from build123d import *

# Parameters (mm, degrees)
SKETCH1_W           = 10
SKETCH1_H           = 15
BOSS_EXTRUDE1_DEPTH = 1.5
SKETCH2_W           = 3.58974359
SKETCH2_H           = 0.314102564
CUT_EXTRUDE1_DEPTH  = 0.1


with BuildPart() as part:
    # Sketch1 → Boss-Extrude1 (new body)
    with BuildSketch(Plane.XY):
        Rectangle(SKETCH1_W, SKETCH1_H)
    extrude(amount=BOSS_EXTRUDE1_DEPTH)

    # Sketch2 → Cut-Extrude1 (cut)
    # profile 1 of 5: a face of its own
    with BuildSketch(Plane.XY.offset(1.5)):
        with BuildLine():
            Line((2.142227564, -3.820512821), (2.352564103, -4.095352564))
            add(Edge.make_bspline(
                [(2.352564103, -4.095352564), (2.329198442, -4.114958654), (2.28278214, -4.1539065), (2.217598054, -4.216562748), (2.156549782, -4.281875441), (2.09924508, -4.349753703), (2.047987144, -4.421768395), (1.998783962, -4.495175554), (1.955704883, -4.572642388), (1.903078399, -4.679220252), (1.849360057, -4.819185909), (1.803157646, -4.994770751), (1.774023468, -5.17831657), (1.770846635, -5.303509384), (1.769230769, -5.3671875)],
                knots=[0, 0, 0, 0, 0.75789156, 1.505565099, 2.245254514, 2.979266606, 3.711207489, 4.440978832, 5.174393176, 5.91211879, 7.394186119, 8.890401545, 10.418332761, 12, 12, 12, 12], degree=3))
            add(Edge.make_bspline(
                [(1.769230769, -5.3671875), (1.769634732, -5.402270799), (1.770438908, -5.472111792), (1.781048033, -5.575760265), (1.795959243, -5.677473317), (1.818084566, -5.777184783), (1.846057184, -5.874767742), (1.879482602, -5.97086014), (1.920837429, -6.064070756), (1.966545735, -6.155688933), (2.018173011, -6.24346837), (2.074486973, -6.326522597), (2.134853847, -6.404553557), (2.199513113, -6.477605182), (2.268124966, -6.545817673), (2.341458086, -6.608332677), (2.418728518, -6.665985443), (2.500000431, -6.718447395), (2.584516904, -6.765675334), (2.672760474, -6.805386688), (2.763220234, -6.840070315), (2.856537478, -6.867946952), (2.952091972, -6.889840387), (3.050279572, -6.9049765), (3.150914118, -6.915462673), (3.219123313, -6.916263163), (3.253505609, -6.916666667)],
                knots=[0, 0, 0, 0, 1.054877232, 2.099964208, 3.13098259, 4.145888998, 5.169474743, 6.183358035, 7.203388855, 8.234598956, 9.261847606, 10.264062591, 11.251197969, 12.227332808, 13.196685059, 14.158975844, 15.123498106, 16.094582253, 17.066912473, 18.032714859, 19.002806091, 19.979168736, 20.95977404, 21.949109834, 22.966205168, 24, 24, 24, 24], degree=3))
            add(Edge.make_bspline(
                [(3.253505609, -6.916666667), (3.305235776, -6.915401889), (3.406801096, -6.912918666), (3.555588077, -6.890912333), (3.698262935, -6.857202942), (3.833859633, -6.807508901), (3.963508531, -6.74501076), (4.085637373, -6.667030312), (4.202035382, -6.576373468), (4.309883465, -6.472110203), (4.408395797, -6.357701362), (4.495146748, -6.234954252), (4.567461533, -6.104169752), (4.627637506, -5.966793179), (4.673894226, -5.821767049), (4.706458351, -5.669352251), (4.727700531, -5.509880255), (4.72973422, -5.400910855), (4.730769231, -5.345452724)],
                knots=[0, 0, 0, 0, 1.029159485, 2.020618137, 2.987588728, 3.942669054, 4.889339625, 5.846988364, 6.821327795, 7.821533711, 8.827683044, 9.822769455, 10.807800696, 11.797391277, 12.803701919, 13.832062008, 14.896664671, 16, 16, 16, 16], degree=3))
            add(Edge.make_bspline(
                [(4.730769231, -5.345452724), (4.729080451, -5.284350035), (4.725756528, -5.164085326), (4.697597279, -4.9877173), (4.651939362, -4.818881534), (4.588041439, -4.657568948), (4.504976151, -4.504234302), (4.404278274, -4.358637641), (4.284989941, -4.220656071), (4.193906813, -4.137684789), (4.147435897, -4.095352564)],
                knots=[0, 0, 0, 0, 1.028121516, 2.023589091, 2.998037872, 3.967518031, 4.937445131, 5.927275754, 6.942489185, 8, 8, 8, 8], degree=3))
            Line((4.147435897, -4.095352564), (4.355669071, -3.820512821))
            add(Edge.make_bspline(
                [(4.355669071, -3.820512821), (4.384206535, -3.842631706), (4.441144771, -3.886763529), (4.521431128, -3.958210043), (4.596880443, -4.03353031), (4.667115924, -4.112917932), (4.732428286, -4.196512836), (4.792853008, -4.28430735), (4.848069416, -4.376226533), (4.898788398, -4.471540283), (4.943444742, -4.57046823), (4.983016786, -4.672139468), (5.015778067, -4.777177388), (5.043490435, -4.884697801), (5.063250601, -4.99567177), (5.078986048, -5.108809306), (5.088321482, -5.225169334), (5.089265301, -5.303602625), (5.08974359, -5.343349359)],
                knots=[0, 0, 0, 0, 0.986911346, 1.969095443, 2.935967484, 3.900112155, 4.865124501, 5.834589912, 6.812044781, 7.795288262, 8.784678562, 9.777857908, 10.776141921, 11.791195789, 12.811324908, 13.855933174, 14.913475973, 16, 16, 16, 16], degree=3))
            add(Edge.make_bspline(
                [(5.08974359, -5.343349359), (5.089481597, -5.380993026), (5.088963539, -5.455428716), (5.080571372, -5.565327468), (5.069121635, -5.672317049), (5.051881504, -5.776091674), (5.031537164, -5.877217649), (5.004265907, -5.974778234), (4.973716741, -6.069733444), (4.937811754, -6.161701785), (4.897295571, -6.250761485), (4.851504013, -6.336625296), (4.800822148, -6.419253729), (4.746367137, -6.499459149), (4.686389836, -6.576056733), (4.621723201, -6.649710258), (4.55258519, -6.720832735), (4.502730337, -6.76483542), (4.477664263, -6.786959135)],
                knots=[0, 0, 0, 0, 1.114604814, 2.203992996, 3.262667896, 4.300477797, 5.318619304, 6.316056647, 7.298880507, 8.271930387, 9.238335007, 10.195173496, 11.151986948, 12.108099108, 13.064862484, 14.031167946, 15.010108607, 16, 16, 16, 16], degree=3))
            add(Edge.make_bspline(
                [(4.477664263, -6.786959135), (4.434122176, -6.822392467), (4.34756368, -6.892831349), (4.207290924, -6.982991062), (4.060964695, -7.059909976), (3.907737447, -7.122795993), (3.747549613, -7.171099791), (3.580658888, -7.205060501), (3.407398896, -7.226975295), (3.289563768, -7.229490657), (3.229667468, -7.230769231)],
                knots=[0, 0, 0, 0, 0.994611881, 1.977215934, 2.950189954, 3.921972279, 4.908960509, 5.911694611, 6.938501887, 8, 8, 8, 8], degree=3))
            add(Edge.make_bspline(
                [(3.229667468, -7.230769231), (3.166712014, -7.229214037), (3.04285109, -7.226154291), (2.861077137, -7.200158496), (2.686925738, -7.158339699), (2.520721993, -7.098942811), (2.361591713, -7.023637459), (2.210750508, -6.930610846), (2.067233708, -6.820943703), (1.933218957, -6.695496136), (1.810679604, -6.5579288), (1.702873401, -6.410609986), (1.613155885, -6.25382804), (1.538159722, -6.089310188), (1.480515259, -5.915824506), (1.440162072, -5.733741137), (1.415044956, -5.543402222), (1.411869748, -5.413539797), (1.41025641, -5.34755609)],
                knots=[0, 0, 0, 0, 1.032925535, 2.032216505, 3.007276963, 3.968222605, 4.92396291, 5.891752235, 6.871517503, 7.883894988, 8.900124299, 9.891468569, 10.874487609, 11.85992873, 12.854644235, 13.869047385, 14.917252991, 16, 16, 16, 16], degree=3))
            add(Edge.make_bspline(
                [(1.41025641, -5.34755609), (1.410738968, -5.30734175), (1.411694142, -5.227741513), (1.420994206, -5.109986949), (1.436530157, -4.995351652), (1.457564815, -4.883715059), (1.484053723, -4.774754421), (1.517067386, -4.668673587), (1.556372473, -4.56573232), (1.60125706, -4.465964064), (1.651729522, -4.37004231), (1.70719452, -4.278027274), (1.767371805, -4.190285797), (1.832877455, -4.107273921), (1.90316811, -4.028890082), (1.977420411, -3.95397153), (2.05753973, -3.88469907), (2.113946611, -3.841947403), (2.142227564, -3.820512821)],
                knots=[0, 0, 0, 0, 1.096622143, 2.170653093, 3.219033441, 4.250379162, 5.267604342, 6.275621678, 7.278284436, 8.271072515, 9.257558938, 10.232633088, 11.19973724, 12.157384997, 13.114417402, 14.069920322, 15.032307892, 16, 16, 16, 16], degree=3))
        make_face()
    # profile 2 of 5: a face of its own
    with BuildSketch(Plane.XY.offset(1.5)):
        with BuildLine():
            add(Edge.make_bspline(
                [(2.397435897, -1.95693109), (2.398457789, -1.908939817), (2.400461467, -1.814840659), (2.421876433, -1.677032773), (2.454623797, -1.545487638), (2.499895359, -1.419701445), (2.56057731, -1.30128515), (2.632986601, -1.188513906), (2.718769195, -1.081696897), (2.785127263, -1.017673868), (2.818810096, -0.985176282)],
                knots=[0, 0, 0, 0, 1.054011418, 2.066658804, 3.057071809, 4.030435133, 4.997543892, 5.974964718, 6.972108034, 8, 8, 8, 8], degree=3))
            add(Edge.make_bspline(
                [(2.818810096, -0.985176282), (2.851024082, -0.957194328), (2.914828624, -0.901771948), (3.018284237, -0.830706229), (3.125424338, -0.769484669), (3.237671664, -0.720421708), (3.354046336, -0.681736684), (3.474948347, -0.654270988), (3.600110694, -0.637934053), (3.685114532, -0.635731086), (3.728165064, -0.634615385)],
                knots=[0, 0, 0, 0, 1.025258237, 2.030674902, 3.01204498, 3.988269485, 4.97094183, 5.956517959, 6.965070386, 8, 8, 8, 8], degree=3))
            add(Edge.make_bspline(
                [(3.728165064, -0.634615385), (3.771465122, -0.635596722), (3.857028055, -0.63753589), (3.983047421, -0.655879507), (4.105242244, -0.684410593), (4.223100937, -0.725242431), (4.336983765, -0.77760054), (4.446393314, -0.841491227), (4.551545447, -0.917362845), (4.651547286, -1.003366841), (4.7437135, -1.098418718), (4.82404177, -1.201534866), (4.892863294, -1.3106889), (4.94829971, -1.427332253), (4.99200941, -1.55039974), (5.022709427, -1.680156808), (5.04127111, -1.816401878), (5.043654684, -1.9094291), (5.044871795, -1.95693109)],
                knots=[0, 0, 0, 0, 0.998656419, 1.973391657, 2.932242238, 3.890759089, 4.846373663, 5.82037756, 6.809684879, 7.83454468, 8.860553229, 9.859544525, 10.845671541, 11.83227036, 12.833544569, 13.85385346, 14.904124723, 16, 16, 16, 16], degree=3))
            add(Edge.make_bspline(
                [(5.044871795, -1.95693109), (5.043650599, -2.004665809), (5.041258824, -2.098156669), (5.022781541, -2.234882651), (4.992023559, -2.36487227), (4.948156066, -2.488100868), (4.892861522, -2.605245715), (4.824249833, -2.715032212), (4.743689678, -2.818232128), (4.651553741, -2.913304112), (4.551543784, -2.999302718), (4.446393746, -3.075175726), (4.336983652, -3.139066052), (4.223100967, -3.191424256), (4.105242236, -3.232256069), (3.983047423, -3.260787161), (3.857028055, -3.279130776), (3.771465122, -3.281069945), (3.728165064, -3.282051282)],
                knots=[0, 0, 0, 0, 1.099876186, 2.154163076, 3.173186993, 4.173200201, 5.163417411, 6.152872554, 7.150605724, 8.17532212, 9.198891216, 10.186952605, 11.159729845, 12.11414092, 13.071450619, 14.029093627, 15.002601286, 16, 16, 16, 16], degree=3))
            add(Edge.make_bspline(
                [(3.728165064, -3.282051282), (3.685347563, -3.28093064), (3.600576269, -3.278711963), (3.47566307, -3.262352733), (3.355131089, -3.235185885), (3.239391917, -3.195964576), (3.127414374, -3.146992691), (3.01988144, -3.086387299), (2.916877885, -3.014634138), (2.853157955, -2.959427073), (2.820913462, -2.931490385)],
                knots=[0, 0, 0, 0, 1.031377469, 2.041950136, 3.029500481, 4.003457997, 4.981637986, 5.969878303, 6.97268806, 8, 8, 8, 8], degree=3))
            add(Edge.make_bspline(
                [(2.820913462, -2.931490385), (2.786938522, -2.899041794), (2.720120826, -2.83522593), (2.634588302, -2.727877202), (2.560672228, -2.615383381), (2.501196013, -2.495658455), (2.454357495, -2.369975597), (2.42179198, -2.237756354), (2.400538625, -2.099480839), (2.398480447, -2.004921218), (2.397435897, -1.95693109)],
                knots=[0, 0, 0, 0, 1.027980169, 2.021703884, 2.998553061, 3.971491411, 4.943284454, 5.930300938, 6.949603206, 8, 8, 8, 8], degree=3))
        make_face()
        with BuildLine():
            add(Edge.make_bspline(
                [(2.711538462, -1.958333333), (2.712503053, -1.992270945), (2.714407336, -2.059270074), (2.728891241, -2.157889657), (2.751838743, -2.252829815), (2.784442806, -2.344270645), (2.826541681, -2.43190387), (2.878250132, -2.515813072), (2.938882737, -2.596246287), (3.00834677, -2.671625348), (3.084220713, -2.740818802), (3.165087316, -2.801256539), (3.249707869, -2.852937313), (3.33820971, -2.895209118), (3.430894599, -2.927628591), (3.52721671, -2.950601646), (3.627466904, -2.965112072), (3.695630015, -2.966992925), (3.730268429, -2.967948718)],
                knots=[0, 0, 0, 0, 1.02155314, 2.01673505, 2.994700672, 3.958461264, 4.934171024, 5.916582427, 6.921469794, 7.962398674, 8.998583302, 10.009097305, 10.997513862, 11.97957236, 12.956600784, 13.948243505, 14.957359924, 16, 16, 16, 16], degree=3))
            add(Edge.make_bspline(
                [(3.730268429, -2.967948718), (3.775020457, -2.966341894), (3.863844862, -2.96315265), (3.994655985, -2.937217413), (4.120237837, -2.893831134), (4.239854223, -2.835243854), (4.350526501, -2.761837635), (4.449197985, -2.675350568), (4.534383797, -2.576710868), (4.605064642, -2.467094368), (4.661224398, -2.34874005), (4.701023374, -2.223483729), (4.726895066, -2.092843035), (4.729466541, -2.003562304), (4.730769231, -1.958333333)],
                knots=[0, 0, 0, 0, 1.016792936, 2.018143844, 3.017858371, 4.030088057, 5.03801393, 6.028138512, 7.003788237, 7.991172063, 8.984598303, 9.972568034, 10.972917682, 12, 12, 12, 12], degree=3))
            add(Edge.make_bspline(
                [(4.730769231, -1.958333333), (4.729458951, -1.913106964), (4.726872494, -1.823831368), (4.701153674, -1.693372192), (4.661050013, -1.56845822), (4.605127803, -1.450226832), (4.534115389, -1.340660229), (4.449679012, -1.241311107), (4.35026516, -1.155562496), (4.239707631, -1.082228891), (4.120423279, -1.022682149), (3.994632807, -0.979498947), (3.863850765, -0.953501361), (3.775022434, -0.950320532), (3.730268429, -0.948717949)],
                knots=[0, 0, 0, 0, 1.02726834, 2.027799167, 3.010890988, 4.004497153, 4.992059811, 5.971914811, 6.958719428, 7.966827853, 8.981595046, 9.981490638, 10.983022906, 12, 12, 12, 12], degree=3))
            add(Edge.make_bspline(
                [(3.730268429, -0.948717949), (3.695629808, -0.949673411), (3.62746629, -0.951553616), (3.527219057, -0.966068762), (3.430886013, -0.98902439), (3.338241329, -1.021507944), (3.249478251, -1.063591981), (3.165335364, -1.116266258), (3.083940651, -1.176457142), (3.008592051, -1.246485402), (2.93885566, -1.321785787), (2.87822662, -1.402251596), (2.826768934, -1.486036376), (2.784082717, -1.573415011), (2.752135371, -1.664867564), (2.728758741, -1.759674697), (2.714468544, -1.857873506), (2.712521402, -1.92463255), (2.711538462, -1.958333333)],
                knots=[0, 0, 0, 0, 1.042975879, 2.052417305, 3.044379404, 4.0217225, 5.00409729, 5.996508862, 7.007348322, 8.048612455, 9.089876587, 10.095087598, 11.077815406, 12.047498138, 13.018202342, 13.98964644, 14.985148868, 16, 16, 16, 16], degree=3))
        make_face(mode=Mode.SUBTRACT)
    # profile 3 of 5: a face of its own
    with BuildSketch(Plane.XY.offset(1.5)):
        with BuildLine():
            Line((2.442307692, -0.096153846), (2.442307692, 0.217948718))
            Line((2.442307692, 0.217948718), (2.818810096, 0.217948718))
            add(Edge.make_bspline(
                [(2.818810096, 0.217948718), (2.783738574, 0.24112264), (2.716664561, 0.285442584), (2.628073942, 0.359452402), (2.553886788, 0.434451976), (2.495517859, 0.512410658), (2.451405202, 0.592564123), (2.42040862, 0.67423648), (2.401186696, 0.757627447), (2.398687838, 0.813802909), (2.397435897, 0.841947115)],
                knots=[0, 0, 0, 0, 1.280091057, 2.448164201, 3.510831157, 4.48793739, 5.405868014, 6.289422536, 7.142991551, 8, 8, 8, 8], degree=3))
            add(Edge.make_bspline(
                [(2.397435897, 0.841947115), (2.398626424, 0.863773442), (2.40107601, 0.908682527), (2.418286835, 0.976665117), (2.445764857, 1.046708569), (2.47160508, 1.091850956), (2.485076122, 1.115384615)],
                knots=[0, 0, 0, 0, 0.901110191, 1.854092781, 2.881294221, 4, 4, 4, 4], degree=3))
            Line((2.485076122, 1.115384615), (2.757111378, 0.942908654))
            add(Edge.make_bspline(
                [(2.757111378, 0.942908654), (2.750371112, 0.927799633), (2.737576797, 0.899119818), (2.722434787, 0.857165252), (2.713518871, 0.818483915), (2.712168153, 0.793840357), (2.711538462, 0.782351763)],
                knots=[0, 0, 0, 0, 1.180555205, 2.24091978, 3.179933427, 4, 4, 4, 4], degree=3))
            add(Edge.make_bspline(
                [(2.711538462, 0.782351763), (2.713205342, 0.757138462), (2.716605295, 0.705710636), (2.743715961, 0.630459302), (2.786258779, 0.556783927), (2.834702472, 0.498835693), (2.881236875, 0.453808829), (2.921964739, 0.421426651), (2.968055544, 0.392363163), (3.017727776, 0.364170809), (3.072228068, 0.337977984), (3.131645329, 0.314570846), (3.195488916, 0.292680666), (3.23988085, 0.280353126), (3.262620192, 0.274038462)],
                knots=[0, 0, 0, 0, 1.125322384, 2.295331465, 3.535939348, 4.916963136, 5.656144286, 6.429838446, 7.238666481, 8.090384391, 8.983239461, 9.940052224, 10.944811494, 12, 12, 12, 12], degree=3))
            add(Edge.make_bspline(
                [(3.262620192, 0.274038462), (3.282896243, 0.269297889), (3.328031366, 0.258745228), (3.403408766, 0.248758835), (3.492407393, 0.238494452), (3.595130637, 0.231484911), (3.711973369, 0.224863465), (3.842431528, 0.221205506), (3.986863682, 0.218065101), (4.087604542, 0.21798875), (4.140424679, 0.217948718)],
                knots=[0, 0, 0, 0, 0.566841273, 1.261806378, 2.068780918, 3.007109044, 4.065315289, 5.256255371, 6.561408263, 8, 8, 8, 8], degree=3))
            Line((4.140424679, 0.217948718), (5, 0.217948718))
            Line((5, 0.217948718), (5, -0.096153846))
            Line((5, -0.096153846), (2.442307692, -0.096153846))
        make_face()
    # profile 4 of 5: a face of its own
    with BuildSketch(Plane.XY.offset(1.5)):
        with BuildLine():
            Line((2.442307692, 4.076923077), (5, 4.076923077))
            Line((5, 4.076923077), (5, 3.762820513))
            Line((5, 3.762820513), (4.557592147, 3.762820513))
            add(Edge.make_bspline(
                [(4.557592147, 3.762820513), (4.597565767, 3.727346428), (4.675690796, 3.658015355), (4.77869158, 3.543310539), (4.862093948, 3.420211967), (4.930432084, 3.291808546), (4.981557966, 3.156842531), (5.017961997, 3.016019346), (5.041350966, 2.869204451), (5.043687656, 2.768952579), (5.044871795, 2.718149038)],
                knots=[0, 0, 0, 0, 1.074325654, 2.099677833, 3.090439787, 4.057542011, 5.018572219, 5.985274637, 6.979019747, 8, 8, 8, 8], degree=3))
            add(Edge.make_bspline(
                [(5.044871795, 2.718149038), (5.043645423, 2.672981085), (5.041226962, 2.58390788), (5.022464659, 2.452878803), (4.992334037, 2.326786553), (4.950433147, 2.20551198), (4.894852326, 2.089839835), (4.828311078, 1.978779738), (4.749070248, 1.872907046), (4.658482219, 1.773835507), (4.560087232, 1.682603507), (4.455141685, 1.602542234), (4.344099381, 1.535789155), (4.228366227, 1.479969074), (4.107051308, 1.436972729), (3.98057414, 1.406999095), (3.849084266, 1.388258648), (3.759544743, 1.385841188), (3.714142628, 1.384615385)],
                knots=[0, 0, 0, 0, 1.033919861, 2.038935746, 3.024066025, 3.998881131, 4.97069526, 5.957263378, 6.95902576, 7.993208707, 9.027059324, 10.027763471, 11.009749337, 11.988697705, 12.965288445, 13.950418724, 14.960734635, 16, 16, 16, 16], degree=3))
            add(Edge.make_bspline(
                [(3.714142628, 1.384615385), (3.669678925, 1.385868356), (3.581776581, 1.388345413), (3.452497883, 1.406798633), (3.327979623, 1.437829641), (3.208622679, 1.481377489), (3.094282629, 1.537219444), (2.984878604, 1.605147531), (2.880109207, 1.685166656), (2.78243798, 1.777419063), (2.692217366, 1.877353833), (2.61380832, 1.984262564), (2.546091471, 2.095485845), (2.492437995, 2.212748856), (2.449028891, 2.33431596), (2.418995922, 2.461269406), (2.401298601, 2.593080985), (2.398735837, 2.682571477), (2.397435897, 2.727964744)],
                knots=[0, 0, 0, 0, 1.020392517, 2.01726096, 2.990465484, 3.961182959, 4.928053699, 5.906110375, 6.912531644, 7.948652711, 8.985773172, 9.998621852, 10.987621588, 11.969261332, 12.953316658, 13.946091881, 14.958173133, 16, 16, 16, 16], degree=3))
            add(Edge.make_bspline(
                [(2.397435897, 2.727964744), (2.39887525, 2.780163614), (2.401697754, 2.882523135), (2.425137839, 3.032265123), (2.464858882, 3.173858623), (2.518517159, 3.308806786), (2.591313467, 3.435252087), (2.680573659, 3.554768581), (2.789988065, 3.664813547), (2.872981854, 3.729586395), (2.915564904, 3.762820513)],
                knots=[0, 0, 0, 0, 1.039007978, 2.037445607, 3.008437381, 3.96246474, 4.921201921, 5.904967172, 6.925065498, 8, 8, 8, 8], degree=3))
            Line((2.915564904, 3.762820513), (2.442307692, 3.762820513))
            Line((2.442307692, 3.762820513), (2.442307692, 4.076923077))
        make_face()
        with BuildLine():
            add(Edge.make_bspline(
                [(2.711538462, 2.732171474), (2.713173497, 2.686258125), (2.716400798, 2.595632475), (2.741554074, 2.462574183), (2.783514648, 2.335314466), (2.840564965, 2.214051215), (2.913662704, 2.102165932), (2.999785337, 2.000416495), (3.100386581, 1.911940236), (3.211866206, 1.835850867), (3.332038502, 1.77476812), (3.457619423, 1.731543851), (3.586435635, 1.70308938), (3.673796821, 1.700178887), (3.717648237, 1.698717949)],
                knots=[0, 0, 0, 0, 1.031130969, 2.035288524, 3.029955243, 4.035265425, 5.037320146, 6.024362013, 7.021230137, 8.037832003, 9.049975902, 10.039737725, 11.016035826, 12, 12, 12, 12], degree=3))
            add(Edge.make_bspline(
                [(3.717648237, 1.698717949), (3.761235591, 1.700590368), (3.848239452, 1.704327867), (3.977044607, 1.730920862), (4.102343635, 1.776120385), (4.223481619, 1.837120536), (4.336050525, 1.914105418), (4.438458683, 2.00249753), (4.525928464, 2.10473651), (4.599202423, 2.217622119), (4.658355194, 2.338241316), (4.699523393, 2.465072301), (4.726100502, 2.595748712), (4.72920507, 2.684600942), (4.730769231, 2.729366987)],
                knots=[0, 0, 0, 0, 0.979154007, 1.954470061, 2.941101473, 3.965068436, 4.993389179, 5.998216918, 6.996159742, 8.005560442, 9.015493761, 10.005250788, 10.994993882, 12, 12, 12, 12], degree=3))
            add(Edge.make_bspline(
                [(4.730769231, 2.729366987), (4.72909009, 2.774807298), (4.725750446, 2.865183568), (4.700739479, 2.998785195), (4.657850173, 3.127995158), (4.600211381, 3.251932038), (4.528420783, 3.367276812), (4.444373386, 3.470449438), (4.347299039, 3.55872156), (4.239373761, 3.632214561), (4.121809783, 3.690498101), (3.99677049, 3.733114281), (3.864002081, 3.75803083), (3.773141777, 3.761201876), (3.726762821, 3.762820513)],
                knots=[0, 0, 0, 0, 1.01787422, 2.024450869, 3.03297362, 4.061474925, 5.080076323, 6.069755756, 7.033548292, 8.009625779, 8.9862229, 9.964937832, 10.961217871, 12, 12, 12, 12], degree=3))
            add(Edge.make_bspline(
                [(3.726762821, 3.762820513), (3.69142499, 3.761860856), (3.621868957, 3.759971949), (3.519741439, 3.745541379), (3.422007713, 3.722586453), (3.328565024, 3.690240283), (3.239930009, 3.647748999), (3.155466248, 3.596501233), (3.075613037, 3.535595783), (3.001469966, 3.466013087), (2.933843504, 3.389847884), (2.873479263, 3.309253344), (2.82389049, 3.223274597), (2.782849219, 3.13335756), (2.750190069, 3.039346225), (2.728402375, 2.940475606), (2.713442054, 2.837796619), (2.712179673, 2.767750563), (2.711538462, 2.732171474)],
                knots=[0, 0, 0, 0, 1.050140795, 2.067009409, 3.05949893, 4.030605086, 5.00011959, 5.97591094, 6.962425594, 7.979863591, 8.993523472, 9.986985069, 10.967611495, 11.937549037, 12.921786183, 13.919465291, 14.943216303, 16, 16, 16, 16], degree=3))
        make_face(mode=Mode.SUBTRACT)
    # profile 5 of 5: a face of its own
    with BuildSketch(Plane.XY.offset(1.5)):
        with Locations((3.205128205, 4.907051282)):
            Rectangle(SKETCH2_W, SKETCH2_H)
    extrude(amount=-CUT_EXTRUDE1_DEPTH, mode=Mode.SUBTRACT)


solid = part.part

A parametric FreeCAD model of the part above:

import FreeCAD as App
import Part
import Sketcher

V = App.Vector


def add_polygon(sketch, points):
    """Adds a closed chain of lines whose ends are joined by coincident constraints."""
    first, n = sketch.GeometryCount, len(points)
    for a, b in zip(points, points[1:] + points[:1]):
        sketch.addGeometry(Part.LineSegment(App.Vector(*a, 0), App.Vector(*b, 0)), False)
    for i in range(n):
        sketch.addConstraint(Sketcher.Constraint("Coincident", first + i, 2, first + (i + 1) % n, 1))

doc = App.newDocument("Part")
params = doc.addObject("Spreadsheet::Sheet", "Params")
for row, (alias, value) in enumerate([
    ("sketch1_width", "10 mm"),
    ("sketch1_height", "15 mm"),
    ("pad1_length", "1.5 mm"),
    ("pocket1_length", "0.1 mm"),
], start=1):
    params.set(f"A{row}", alias)
    params.set(f"B{row}", "=" + value)
    params.setAlias(f"B{row}", alias)

body = doc.addObject("PartDesign::Body", "Body")

# Sketch on XY plane
sketch1 = body.newObject("Sketcher::SketchObject", "Sketch")
sketch1.AttachmentSupport = (doc.getObject("XY_Plane"), [""])
sketch1.MapMode = "FlatFace"
add_polygon(sketch1, [(-5, 7.5), (-5, -7.5), (5, -7.5), (5, 7.5)])  # lines 0-3
sketch1.addConstraint(Sketcher.Constraint("Vertical", 0))
sketch1.addConstraint(Sketcher.Constraint("Horizontal", 1))
sketch1.addConstraint(Sketcher.Constraint("Vertical", 2))
sketch1.addConstraint(Sketcher.Constraint("Horizontal", 3))
sketch1.addConstraint(Sketcher.Constraint("Symmetric", 0, 2, 2, 2, -1, 1))
sketch1.addConstraint(Sketcher.Constraint("DistanceX", 1, 1, 1, 2, 10.0))
sketch1.addConstraint(Sketcher.Constraint("DistanceY", 0, 2, 0, 1, 15.0))
sketch1.setExpression("Constraints[9]", "Params.sketch1_width")
sketch1.setExpression("Constraints[10]", "Params.sketch1_height")
pad1 = body.newObject("PartDesign::Pad", "Pad")
pad1.Profile = sketch1
pad1.setExpression("Length", "Params.pad1_length")

# Sketch on XY plane
sketch2 = body.newObject("Sketcher::SketchObject", "Sketch001")
sketch2.AttachmentSupport = (doc.getObject("XY_Plane"), [""])
sketch2.MapMode = "FlatFace"
sketch2.AttachmentOffset = App.Placement(V(0, 0, 1.5), App.Rotation())
sketch2.addGeometry(Part.LineSegment(V(2.352564, -4.095353, 0), V(2.142228, -3.820513, 0)), False)  # 0
sketch2.addGeometry(Part.BSplineCurve([V(1.410256, -5.347556, 0), V(1.410739, -5.307342, 0), V(1.411694, -5.227742, 0), V(1.420994, -5.109987, 0), V(1.43653, -4.995352, 0), V(1.457565, -4.883715, 0), V(1.484054, -4.774754, 0), V(1.517067, -4.668674, 0), V(1.556372, -4.565732, 0), V(1.601257, -4.465964, 0), V(1.65173, -4.370042, 0), V(1.707195, -4.278027, 0), V(1.767372, -4.190286, 0), V(1.832877, -4.107274, 0), V(1.903168, -4.02889, 0), V(1.97742, -3.953972, 0), V(2.05754, -3.884699, 0), V(2.113947, -3.841947, 0), V(2.142228, -3.820513, 0)], [4, 1, 1, 1, 1, 1, 1, 1, 1, 1, 1, 1, 1, 1, 1, 1, 4], [0, 1.096622143, 2.170653093, 3.219033441, 4.250379162, 5.267604342, 6.275621678, 7.278284436, 8.271072515, 9.257558938, 10.232633088, 11.19973724, 12.157384997, 13.114417402, 14.069920322, 15.032307892, 16], False, 3, [1, 1, 1, 1, 1, 1, 1, 1, 1, 1, 1, 1, 1, 1, 1, 1, 1, 1, 1], False), False)  # 1
sketch2.addGeometry(Part.BSplineCurve([V(3.229667, -7.230769, 0), V(3.166712, -7.229214, 0), V(3.042851, -7.226154, 0), V(2.861077, -7.200158, 0), V(2.686926, -7.15834, 0), V(2.520722, -7.098943, 0), V(2.361592, -7.023637, 0), V(2.210751, -6.930611, 0), V(2.067234, -6.820944, 0), V(1.933219, -6.695496, 0), V(1.81068, -6.557929, 0), V(1.702873, -6.41061, 0), V(1.613156, -6.253828, 0), V(1.53816, -6.08931, 0), V(1.480515, -5.915825, 0), V(1.440162, -5.733741, 0), V(1.415045, -5.543402, 0), V(1.41187, -5.41354, 0), V(1.410256, -5.347556, 0)], [4, 1, 1, 1, 1, 1, 1, 1, 1, 1, 1, 1, 1, 1, 1, 1, 4], [0, 1.032925535, 2.032216505, 3.007276963, 3.968222605, 4.92396291, 5.891752235, 6.871517503, 7.883894988, 8.900124299, 9.891468569, 10.874487609, 11.85992873, 12.854644235, 13.869047385, 14.917252991, 16], False, 3, [1, 1, 1, 1, 1, 1, 1, 1, 1, 1, 1, 1, 1, 1, 1, 1, 1, 1, 1], False), False)  # 2
sketch2.addGeometry(Part.BSplineCurve([V(4.477664, -6.786959, 0), V(4.434122, -6.822392, 0), V(4.347564, -6.892831, 0), V(4.207291, -6.982991, 0), V(4.060965, -7.05991, 0), V(3.907737, -7.122796, 0), V(3.74755, -7.1711, 0), V(3.580659, -7.205061, 0), V(3.407399, -7.226975, 0), V(3.289564, -7.229491, 0), V(3.229667, -7.230769, 0)], [4, 1, 1, 1, 1, 1, 1, 1, 4], [0, 0.994611881, 1.977215934, 2.950189954, 3.921972279, 4.908960509, 5.911694611, 6.938501887, 8], False, 3, [1, 1, 1, 1, 1, 1, 1, 1, 1, 1, 1], False), False)  # 3
sketch2.addGeometry(Part.BSplineCurve([V(5.089744, -5.343349, 0), V(5.089482, -5.380993, 0), V(5.088964, -5.455429, 0), V(5.080571, -5.565327, 0), V(5.069122, -5.672317, 0), V(5.051882, -5.776092, 0), V(5.031537, -5.877218, 0), V(5.004266, -5.974778, 0), V(4.973717, -6.069733, 0), V(4.937812, -6.161702, 0), V(4.897296, -6.250761, 0), V(4.851504, -6.336625, 0), V(4.800822, -6.419254, 0), V(4.746367, -6.499459, 0), V(4.68639, -6.576057, 0), V(4.621723, -6.64971, 0), V(4.552585, -6.720833, 0), V(4.50273, -6.764835, 0), V(4.477664, -6.786959, 0)], [4, 1, 1, 1, 1, 1, 1, 1, 1, 1, 1, 1, 1, 1, 1, 1, 4], [0, 1.114604814, 2.203992996, 3.262667896, 4.300477797, 5.318619304, 6.316056647, 7.298880507, 8.271930387, 9.238335007, 10.195173496, 11.151986948, 12.108099108, 13.064862484, 14.031167946, 15.010108607, 16], False, 3, [1, 1, 1, 1, 1, 1, 1, 1, 1, 1, 1, 1, 1, 1, 1, 1, 1, 1, 1], False), False)  # 4
sketch2.addGeometry(Part.BSplineCurve([V(4.355669, -3.820513, 0), V(4.384207, -3.842632, 0), V(4.441145, -3.886764, 0), V(4.521431, -3.95821, 0), V(4.59688, -4.03353, 0), V(4.667116, -4.112918, 0), V(4.732428, -4.196513, 0), V(4.792853, -4.284307, 0), V(4.848069, -4.376227, 0), V(4.898788, -4.47154, 0), V(4.943445, -4.570468, 0), V(4.983017, -4.672139, 0), V(5.015778, -4.777177, 0), V(5.04349, -4.884698, 0), V(5.063251, -4.995672, 0), V(5.078986, -5.108809, 0), V(5.088321, -5.225169, 0), V(5.089265, -5.303603, 0), V(5.089744, -5.343349, 0)], [4, 1, 1, 1, 1, 1, 1, 1, 1, 1, 1, 1, 1, 1, 1, 1, 4], [0, 0.986911346, 1.969095443, 2.935967484, 3.900112155, 4.865124501, 5.834589912, 6.812044781, 7.795288262, 8.784678562, 9.777857908, 10.776141921, 11.791195789, 12.811324908, 13.855933174, 14.913475973, 16], False, 3, [1, 1, 1, 1, 1, 1, 1, 1, 1, 1, 1, 1, 1, 1, 1, 1, 1, 1, 1], False), False)  # 5
sketch2.addGeometry(Part.LineSegment(V(4.355669, -3.820513, 0), V(4.147436, -4.095353, 0)), False)  # 6
sketch2.addGeometry(Part.BSplineCurve([V(4.730769, -5.345453, 0), V(4.72908, -5.28435, 0), V(4.725757, -5.164085, 0), V(4.697597, -4.987717, 0), V(4.651939, -4.818882, 0), V(4.588041, -4.657569, 0), V(4.504976, -4.504234, 0), V(4.404278, -4.358638, 0), V(4.28499, -4.220656, 0), V(4.193907, -4.137685, 0), V(4.147436, -4.095353, 0)], [4, 1, 1, 1, 1, 1, 1, 1, 4], [0, 1.028121516, 2.023589091, 2.998037872, 3.967518031, 4.937445131, 5.927275754, 6.942489185, 8], False, 3, [1, 1, 1, 1, 1, 1, 1, 1, 1, 1, 1], False), False)  # 7
sketch2.addGeometry(Part.BSplineCurve([V(3.253506, -6.916667, 0), V(3.305236, -6.915402, 0), V(3.406801, -6.912919, 0), V(3.555588, -6.890912, 0), V(3.698263, -6.857203, 0), V(3.83386, -6.807509, 0), V(3.963509, -6.745011, 0), V(4.085637, -6.66703, 0), V(4.202035, -6.576373, 0), V(4.309883, -6.47211, 0), V(4.408396, -6.357701, 0), V(4.495147, -6.234954, 0), V(4.567462, -6.10417, 0), V(4.627638, -5.966793, 0), V(4.673894, -5.821767, 0), V(4.706458, -5.669352, 0), V(4.727701, -5.50988, 0), V(4.729734, -5.400911, 0), V(4.730769, -5.345453, 0)], [4, 1, 1, 1, 1, 1, 1, 1, 1, 1, 1, 1, 1, 1, 1, 1, 4], [0, 1.029159485, 2.020618137, 2.987588728, 3.942669054, 4.889339625, 5.846988364, 6.821327795, 7.821533711, 8.827683044, 9.822769455, 10.807800696, 11.797391277, 12.803701919, 13.832062008, 14.896664671, 16], False, 3, [1, 1, 1, 1, 1, 1, 1, 1, 1, 1, 1, 1, 1, 1, 1, 1, 1, 1, 1], False), False)  # 8
sketch2.addGeometry(Part.BSplineCurve([V(1.769231, -5.367188, 0), V(1.769635, -5.402271, 0), V(1.770439, -5.472112, 0), V(1.781048, -5.57576, 0), V(1.795959, -5.677473, 0), V(1.818085, -5.777185, 0), V(1.846057, -5.874768, 0), V(1.879483, -5.97086, 0), V(1.920837, -6.064071, 0), V(1.966546, -6.155689, 0), V(2.018173, -6.243468, 0), V(2.074487, -6.326523, 0), V(2.134854, -6.404554, 0), V(2.199513, -6.477605, 0), V(2.268125, -6.545818, 0), V(2.341458, -6.608333, 0), V(2.418729, -6.665985, 0), V(2.5, -6.718447, 0), V(2.584517, -6.765675, 0), V(2.67276, -6.805387, 0), V(2.76322, -6.84007, 0), V(2.856537, -6.867947, 0), V(2.952092, -6.88984, 0), V(3.05028, -6.904977, 0), V(3.150914, -6.915463, 0), V(3.219123, -6.916263, 0), V(3.253506, -6.916667, 0)], [4, 1, 1, 1, 1, 1, 1, 1, 1, 1, 1, 1, 1, 1, 1, 1, 1, 1, 1, 1, 1, 1, 1, 1, 4], [0, 1.054877232, 2.099964208, 3.13098259, 4.145888998, 5.169474743, 6.183358035, 7.203388855, 8.234598956, 9.261847606, 10.264062591, 11.251197969, 12.227332808, 13.196685059, 14.158975844, 15.123498106, 16.094582253, 17.066912473, 18.032714859, 19.002806091, 19.979168736, 20.95977404, 21.949109834, 22.966205168, 24], False, 3, [1, 1, 1, 1, 1, 1, 1, 1, 1, 1, 1, 1, 1, 1, 1, 1, 1, 1, 1, 1, 1, 1, 1, 1, 1, 1, 1], False), False)  # 9
sketch2.addGeometry(Part.BSplineCurve([V(2.352564, -4.095353, 0), V(2.329198, -4.114959, 0), V(2.282782, -4.153906, 0), V(2.217598, -4.216563, 0), V(2.15655, -4.281875, 0), V(2.099245, -4.349754, 0), V(2.047987, -4.421768, 0), V(1.998784, -4.495176, 0), V(1.955705, -4.572642, 0), V(1.903078, -4.67922, 0), V(1.84936, -4.819186, 0), V(1.803158, -4.994771, 0), V(1.774023, -5.178317, 0), V(1.770847, -5.303509, 0), V(1.769231, -5.367188, 0)], [4, 1, 1, 1, 1, 1, 1, 1, 1, 1, 1, 1, 4], [0, 0.75789156, 1.505565099, 2.245254514, 2.979266606, 3.711207489, 4.440978832, 5.174393176, 5.91211879, 7.394186119, 8.890401545, 10.418332761, 12], False, 3, [1, 1, 1, 1, 1, 1, 1, 1, 1, 1, 1, 1, 1, 1, 1], False), False)  # 10
sketch2.addGeometry(Part.BSplineCurve([V(2.397436, -1.956931, 0), V(2.398458, -1.90894, 0), V(2.400461, -1.814841, 0), V(2.421876, -1.677033, 0), V(2.454624, -1.545488, 0), V(2.499895, -1.419701, 0), V(2.560577, -1.301285, 0), V(2.632987, -1.188514, 0), V(2.718769, -1.081697, 0), V(2.785127, -1.017674, 0), V(2.81881, -0.985176, 0)], [4, 1, 1, 1, 1, 1, 1, 1, 4], [0, 1.054011418, 2.066658804, 3.057071809, 4.030435133, 4.997543892, 5.974964718, 6.972108034, 8], False, 3, [1, 1, 1, 1, 1, 1, 1, 1, 1, 1, 1], False), False)  # 11
sketch2.addGeometry(Part.BSplineCurve([V(2.820913, -2.93149, 0), V(2.786939, -2.899042, 0), V(2.720121, -2.835226, 0), V(2.634588, -2.727877, 0), V(2.560672, -2.615383, 0), V(2.501196, -2.495658, 0), V(2.454357, -2.369976, 0), V(2.421792, -2.237756, 0), V(2.400539, -2.099481, 0), V(2.39848, -2.004921, 0), V(2.397436, -1.956931, 0)], [4, 1, 1, 1, 1, 1, 1, 1, 4], [0, 1.027980169, 2.021703884, 2.998553061, 3.971491411, 4.943284454, 5.930300938, 6.949603206, 8], False, 3, [1, 1, 1, 1, 1, 1, 1, 1, 1, 1, 1], False), False)  # 12
sketch2.addGeometry(Part.BSplineCurve([V(3.728165, -3.282051, 0), V(3.685348, -3.280931, 0), V(3.600576, -3.278712, 0), V(3.475663, -3.262353, 0), V(3.355131, -3.235186, 0), V(3.239392, -3.195965, 0), V(3.127414, -3.146993, 0), V(3.019881, -3.086387, 0), V(2.916878, -3.014634, 0), V(2.853158, -2.959427, 0), V(2.820913, -2.93149, 0)], [4, 1, 1, 1, 1, 1, 1, 1, 4], [0, 1.031377469, 2.041950136, 3.029500481, 4.003457997, 4.981637986, 5.969878303, 6.97268806, 8], False, 3, [1, 1, 1, 1, 1, 1, 1, 1, 1, 1, 1], False), False)  # 13
sketch2.addGeometry(Part.BSplineCurve([V(5.044872, -1.956931, 0), V(5.043651, -2.004666, 0), V(5.041259, -2.098157, 0), V(5.022782, -2.234883, 0), V(4.992024, -2.364872, 0), V(4.948156, -2.488101, 0), V(4.892862, -2.605246, 0), V(4.82425, -2.715032, 0), V(4.74369, -2.818232, 0), V(4.651554, -2.913304, 0), V(4.551544, -2.999303, 0), V(4.446394, -3.075176, 0), V(4.336984, -3.139066, 0), V(4.223101, -3.191424, 0), V(4.105242, -3.232256, 0), V(3.983047, -3.260787, 0), V(3.857028, -3.279131, 0), V(3.771465, -3.28107, 0), V(3.728165, -3.282051, 0)], [4, 1, 1, 1, 1, 1, 1, 1, 1, 1, 1, 1, 1, 1, 1, 1, 4], [0, 1.099876186, 2.154163076, 3.173186993, 4.173200201, 5.163417411, 6.152872554, 7.150605724, 8.17532212, 9.198891216, 10.186952605, 11.159729845, 12.11414092, 13.071450619, 14.029093627, 15.002601286, 16], False, 3, [1, 1, 1, 1, 1, 1, 1, 1, 1, 1, 1, 1, 1, 1, 1, 1, 1, 1, 1], False), False)  # 14
sketch2.addGeometry(Part.BSplineCurve([V(3.728165, -0.634615, 0), V(3.771465, -0.635597, 0), V(3.857028, -0.637536, 0), V(3.983047, -0.65588, 0), V(4.105242, -0.684411, 0), V(4.223101, -0.725242, 0), V(4.336984, -0.777601, 0), V(4.446393, -0.841491, 0), V(4.551545, -0.917363, 0), V(4.651547, -1.003367, 0), V(4.743714, -1.098419, 0), V(4.824042, -1.201535, 0), V(4.892863, -1.310689, 0), V(4.9483, -1.427332, 0), V(4.992009, -1.5504, 0), V(5.022709, -1.680157, 0), V(5.041271, -1.816402, 0), V(5.043655, -1.909429, 0), V(5.044872, -1.956931, 0)], [4, 1, 1, 1, 1, 1, 1, 1, 1, 1, 1, 1, 1, 1, 1, 1, 4], [0, 0.998656419, 1.973391657, 2.932242238, 3.890759089, 4.846373663, 5.82037756, 6.809684879, 7.83454468, 8.860553229, 9.859544525, 10.845671541, 11.83227036, 12.833544569, 13.85385346, 14.904124723, 16], False, 3, [1, 1, 1, 1, 1, 1, 1, 1, 1, 1, 1, 1, 1, 1, 1, 1, 1, 1, 1], False), False)  # 15
sketch2.addGeometry(Part.BSplineCurve([V(2.81881, -0.985176, 0), V(2.851024, -0.957194, 0), V(2.914829, -0.901772, 0), V(3.018284, -0.830706, 0), V(3.125424, -0.769485, 0), V(3.237672, -0.720422, 0), V(3.354046, -0.681737, 0), V(3.474948, -0.654271, 0), V(3.600111, -0.637934, 0), V(3.685115, -0.635731, 0), V(3.728165, -0.634615, 0)], [4, 1, 1, 1, 1, 1, 1, 1, 4], [0, 1.025258237, 2.030674902, 3.01204498, 3.988269485, 4.97094183, 5.956517959, 6.965070386, 8], False, 3, [1, 1, 1, 1, 1, 1, 1, 1, 1, 1, 1], False), False)  # 16
sketch2.addGeometry(Part.BSplineCurve([V(3.730268, -0.948718, 0), V(3.69563, -0.949673, 0), V(3.627466, -0.951554, 0), V(3.527219, -0.966069, 0), V(3.430886, -0.989024, 0), V(3.338241, -1.021508, 0), V(3.249478, -1.063592, 0), V(3.165335, -1.116266, 0), V(3.083941, -1.176457, 0), V(3.008592, -1.246485, 0), V(2.938856, -1.321786, 0), V(2.878227, -1.402252, 0), V(2.826769, -1.486036, 0), V(2.784083, -1.573415, 0), V(2.752135, -1.664868, 0), V(2.728759, -1.759675, 0), V(2.714469, -1.857874, 0), V(2.712521, -1.924633, 0), V(2.711538, -1.958333, 0)], [4, 1, 1, 1, 1, 1, 1, 1, 1, 1, 1, 1, 1, 1, 1, 1, 4], [0, 1.042975879, 2.052417305, 3.044379404, 4.0217225, 5.00409729, 5.996508862, 7.007348322, 8.048612455, 9.089876587, 10.095087598, 11.077815406, 12.047498138, 13.018202342, 13.98964644, 14.985148868, 16], False, 3, [1, 1, 1, 1, 1, 1, 1, 1, 1, 1, 1, 1, 1, 1, 1, 1, 1, 1, 1], False), False)  # 17
sketch2.addGeometry(Part.BSplineCurve([V(4.730769, -1.958333, 0), V(4.729459, -1.913107, 0), V(4.726872, -1.823831, 0), V(4.701154, -1.693372, 0), V(4.66105, -1.568458, 0), V(4.605128, -1.450227, 0), V(4.534115, -1.34066, 0), V(4.449679, -1.241311, 0), V(4.350265, -1.155562, 0), V(4.239708, -1.082229, 0), V(4.120423, -1.022682, 0), V(3.994633, -0.979499, 0), V(3.863851, -0.953501, 0), V(3.775022, -0.950321, 0), V(3.730268, -0.948718, 0)], [4, 1, 1, 1, 1, 1, 1, 1, 1, 1, 1, 1, 4], [0, 1.02726834, 2.027799167, 3.010890988, 4.004497153, 4.992059811, 5.971914811, 6.958719428, 7.966827853, 8.981595046, 9.981490638, 10.983022906, 12], False, 3, [1, 1, 1, 1, 1, 1, 1, 1, 1, 1, 1, 1, 1, 1, 1], False), False)  # 18
sketch2.addGeometry(Part.BSplineCurve([V(3.730268, -2.967949, 0), V(3.77502, -2.966342, 0), V(3.863845, -2.963153, 0), V(3.994656, -2.937217, 0), V(4.120238, -2.893831, 0), V(4.239854, -2.835244, 0), V(4.350527, -2.761838, 0), V(4.449198, -2.675351, 0), V(4.534384, -2.576711, 0), V(4.605065, -2.467094, 0), V(4.661224, -2.34874, 0), V(4.701023, -2.223484, 0), V(4.726895, -2.092843, 0), V(4.729467, -2.003562, 0), V(4.730769, -1.958333, 0)], [4, 1, 1, 1, 1, 1, 1, 1, 1, 1, 1, 1, 4], [0, 1.016792936, 2.018143844, 3.017858371, 4.030088057, 5.03801393, 6.028138512, 7.003788237, 7.991172063, 8.984598303, 9.972568034, 10.972917682, 12], False, 3, [1, 1, 1, 1, 1, 1, 1, 1, 1, 1, 1, 1, 1, 1, 1], False), False)  # 19
sketch2.addGeometry(Part.BSplineCurve([V(2.711538, -1.958333, 0), V(2.712503, -1.992271, 0), V(2.714407, -2.05927, 0), V(2.728891, -2.15789, 0), V(2.751839, -2.25283, 0), V(2.784443, -2.344271, 0), V(2.826542, -2.431904, 0), V(2.87825, -2.515813, 0), V(2.938883, -2.596246, 0), V(3.008347, -2.671625, 0), V(3.084221, -2.740819, 0), V(3.165087, -2.801257, 0), V(3.249708, -2.852937, 0), V(3.33821, -2.895209, 0), V(3.430895, -2.927629, 0), V(3.527217, -2.950602, 0), V(3.627467, -2.965112, 0), V(3.69563, -2.966993, 0), V(3.730268, -2.967949, 0)], [4, 1, 1, 1, 1, 1, 1, 1, 1, 1, 1, 1, 1, 1, 1, 1, 4], [0, 1.02155314, 2.01673505, 2.994700672, 3.958461264, 4.934171024, 5.916582427, 6.921469794, 7.962398674, 8.998583302, 10.009097305, 10.997513862, 11.97957236, 12.956600784, 13.948243505, 14.957359924, 16], False, 3, [1, 1, 1, 1, 1, 1, 1, 1, 1, 1, 1, 1, 1, 1, 1, 1, 1, 1, 1], False), False)  # 20
sketch2.addGeometry(Part.LineSegment(V(2.442308, 0.217949, 0), V(2.442308, -0.096154, 0)), False)  # 21
sketch2.addGeometry(Part.LineSegment(V(2.442308, -0.096154, 0), V(5, -0.096154, 0)), False)  # 22
sketch2.addGeometry(Part.LineSegment(V(5, -0.096154, 0), V(5, 0.217949, 0)), False)  # 23
sketch2.addGeometry(Part.LineSegment(V(5, 0.217949, 0), V(4.140425, 0.217949, 0)), False)  # 24
sketch2.addGeometry(Part.BSplineCurve([V(3.26262, 0.274038, 0), V(3.282896, 0.269298, 0), V(3.328031, 0.258745, 0), V(3.403409, 0.248759, 0), V(3.492407, 0.238494, 0), V(3.595131, 0.231485, 0), V(3.711973, 0.224863, 0), V(3.842432, 0.221206, 0), V(3.986864, 0.218065, 0), V(4.087605, 0.217989, 0), V(4.140425, 0.217949, 0)], [4, 1, 1, 1, 1, 1, 1, 1, 4], [0, 0.566841273, 1.261806378, 2.068780918, 3.007109044, 4.065315289, 5.256255371, 6.561408263, 8], False, 3, [1, 1, 1, 1, 1, 1, 1, 1, 1, 1, 1], False), False)  # 25
sketch2.addGeometry(Part.BSplineCurve([V(2.711538, 0.782352, 0), V(2.713205, 0.757138, 0), V(2.716605, 0.705711, 0), V(2.743716, 0.630459, 0), V(2.786259, 0.556784, 0), V(2.834702, 0.498836, 0), V(2.881237, 0.453809, 0), V(2.921965, 0.421427, 0), V(2.968056, 0.392363, 0), V(3.017728, 0.364171, 0), V(3.072228, 0.337978, 0), V(3.131645, 0.314571, 0), V(3.195489, 0.292681, 0), V(3.239881, 0.280353, 0), V(3.26262, 0.274038, 0)], [4, 1, 1, 1, 1, 1, 1, 1, 1, 1, 1, 1, 4], [0, 1.125322384, 2.295331465, 3.535939348, 4.916963136, 5.656144286, 6.429838446, 7.238666481, 8.090384391, 8.983239461, 9.940052224, 10.944811494, 12], False, 3, [1, 1, 1, 1, 1, 1, 1, 1, 1, 1, 1, 1, 1, 1, 1], False), False)  # 26
sketch2.addGeometry(Part.BSplineCurve([V(2.757111, 0.942909, 0), V(2.750371, 0.9278, 0), V(2.737577, 0.89912, 0), V(2.722435, 0.857165, 0), V(2.713519, 0.818484, 0), V(2.712168, 0.79384, 0), V(2.711538, 0.782352, 0)], [4, 1, 1, 1, 4], [0, 1.180555205, 2.24091978, 3.179933427, 4], False, 3, [1, 1, 1, 1, 1, 1, 1], False), False)  # 27
sketch2.addGeometry(Part.LineSegment(V(2.757111, 0.942909, 0), V(2.485076, 1.115385, 0)), False)  # 28
sketch2.addGeometry(Part.BSplineCurve([V(2.397436, 0.841947, 0), V(2.398626, 0.863773, 0), V(2.401076, 0.908683, 0), V(2.418287, 0.976665, 0), V(2.445765, 1.046709, 0), V(2.471605, 1.091851, 0), V(2.485076, 1.115385, 0)], [4, 1, 1, 1, 4], [0, 0.901110191, 1.854092781, 2.881294221, 4], False, 3, [1, 1, 1, 1, 1, 1, 1], False), False)  # 29
sketch2.addGeometry(Part.BSplineCurve([V(2.81881, 0.217949, 0), V(2.783739, 0.241123, 0), V(2.716665, 0.285443, 0), V(2.628074, 0.359452, 0), V(2.553887, 0.434452, 0), V(2.495518, 0.512411, 0), V(2.451405, 0.592564, 0), V(2.420409, 0.674236, 0), V(2.401187, 0.757627, 0), V(2.398688, 0.813803, 0), V(2.397436, 0.841947, 0)], [4, 1, 1, 1, 1, 1, 1, 1, 4], [0, 1.280091057, 2.448164201, 3.510831157, 4.48793739, 5.405868014, 6.289422536, 7.142991551, 8], False, 3, [1, 1, 1, 1, 1, 1, 1, 1, 1, 1, 1], False), False)  # 30
sketch2.addGeometry(Part.LineSegment(V(2.81881, 0.217949, 0), V(2.442308, 0.217949, 0)), False)  # 31
sketch2.addGeometry(Part.LineSegment(V(5, 4.076923, 0), V(2.442308, 4.076923, 0)), False)  # 32
sketch2.addGeometry(Part.LineSegment(V(2.442308, 4.076923, 0), V(2.442308, 3.762821, 0)), False)  # 33
sketch2.addGeometry(Part.LineSegment(V(2.442308, 3.762821, 0), V(2.915565, 3.762821, 0)), False)  # 34
sketch2.addGeometry(Part.BSplineCurve([V(2.397436, 2.727965, 0), V(2.398875, 2.780164, 0), V(2.401698, 2.882523, 0), V(2.425138, 3.032265, 0), V(2.464859, 3.173859, 0), V(2.518517, 3.308807, 0), V(2.591313, 3.435252, 0), V(2.680574, 3.554769, 0), V(2.789988, 3.664814, 0), V(2.872982, 3.729586, 0), V(2.915565, 3.762821, 0)], [4, 1, 1, 1, 1, 1, 1, 1, 4], [0, 1.039007978, 2.037445607, 3.008437381, 3.96246474, 4.921201921, 5.904967172, 6.925065498, 8], False, 3, [1, 1, 1, 1, 1, 1, 1, 1, 1, 1, 1], False), False)  # 35
sketch2.addGeometry(Part.BSplineCurve([V(3.714143, 1.384615, 0), V(3.669679, 1.385868, 0), V(3.581777, 1.388345, 0), V(3.452498, 1.406799, 0), V(3.32798, 1.43783, 0), V(3.208623, 1.481377, 0), V(3.094283, 1.537219, 0), V(2.984879, 1.605148, 0), V(2.880109, 1.685167, 0), V(2.782438, 1.777419, 0), V(2.692217, 1.877354, 0), V(2.613808, 1.984263, 0), V(2.546091, 2.095486, 0), V(2.492438, 2.212749, 0), V(2.449029, 2.334316, 0), V(2.418996, 2.461269, 0), V(2.401299, 2.593081, 0), V(2.398736, 2.682571, 0), V(2.397436, 2.727965, 0)], [4, 1, 1, 1, 1, 1, 1, 1, 1, 1, 1, 1, 1, 1, 1, 1, 4], [0, 1.020392517, 2.01726096, 2.990465484, 3.961182959, 4.928053699, 5.906110375, 6.912531644, 7.948652711, 8.985773172, 9.998621852, 10.987621588, 11.969261332, 12.953316658, 13.946091881, 14.958173133, 16], False, 3, [1, 1, 1, 1, 1, 1, 1, 1, 1, 1, 1, 1, 1, 1, 1, 1, 1, 1, 1], False), False)  # 36
sketch2.addGeometry(Part.BSplineCurve([V(5.044872, 2.718149, 0), V(5.043645, 2.672981, 0), V(5.041227, 2.583908, 0), V(5.022465, 2.452879, 0), V(4.992334, 2.326787, 0), V(4.950433, 2.205512, 0), V(4.894852, 2.08984, 0), V(4.828311, 1.97878, 0), V(4.74907, 1.872907, 0), V(4.658482, 1.773836, 0), V(4.560087, 1.682604, 0), V(4.455142, 1.602542, 0), V(4.344099, 1.535789, 0), V(4.228366, 1.479969, 0), V(4.107051, 1.436973, 0), V(3.980574, 1.406999, 0), V(3.849084, 1.388259, 0), V(3.759545, 1.385841, 0), V(3.714143, 1.384615, 0)], [4, 1, 1, 1, 1, 1, 1, 1, 1, 1, 1, 1, 1, 1, 1, 1, 4], [0, 1.033919861, 2.038935746, 3.024066025, 3.998881131, 4.97069526, 5.957263378, 6.95902576, 7.993208707, 9.027059324, 10.027763471, 11.009749337, 11.988697705, 12.965288445, 13.950418724, 14.960734635, 16], False, 3, [1, 1, 1, 1, 1, 1, 1, 1, 1, 1, 1, 1, 1, 1, 1, 1, 1, 1, 1], False), False)  # 37
sketch2.addGeometry(Part.BSplineCurve([V(4.557592, 3.762821, 0), V(4.597566, 3.727346, 0), V(4.675691, 3.658015, 0), V(4.778692, 3.543311, 0), V(4.862094, 3.420212, 0), V(4.930432, 3.291809, 0), V(4.981558, 3.156843, 0), V(5.017962, 3.016019, 0), V(5.041351, 2.869204, 0), V(5.043688, 2.768953, 0), V(5.044872, 2.718149, 0)], [4, 1, 1, 1, 1, 1, 1, 1, 4], [0, 1.074325654, 2.099677833, 3.090439787, 4.057542011, 5.018572219, 5.985274637, 6.979019747, 8], False, 3, [1, 1, 1, 1, 1, 1, 1, 1, 1, 1, 1], False), False)  # 38
sketch2.addGeometry(Part.LineSegment(V(4.557592, 3.762821, 0), V(5, 3.762821, 0)), False)  # 39
sketch2.addGeometry(Part.LineSegment(V(5, 3.762821, 0), V(5, 4.076923, 0)), False)  # 40
sketch2.addGeometry(Part.BSplineCurve([V(3.726763, 3.762821, 0), V(3.691425, 3.761861, 0), V(3.621869, 3.759972, 0), V(3.519741, 3.745541, 0), V(3.422008, 3.722586, 0), V(3.328565, 3.69024, 0), V(3.23993, 3.647749, 0), V(3.155466, 3.596501, 0), V(3.075613, 3.535596, 0), V(3.00147, 3.466013, 0), V(2.933844, 3.389848, 0), V(2.873479, 3.309253, 0), V(2.82389, 3.223275, 0), V(2.782849, 3.133358, 0), V(2.75019, 3.039346, 0), V(2.728402, 2.940476, 0), V(2.713442, 2.837797, 0), V(2.71218, 2.767751, 0), V(2.711538, 2.732171, 0)], [4, 1, 1, 1, 1, 1, 1, 1, 1, 1, 1, 1, 1, 1, 1, 1, 4], [0, 1.050140795, 2.067009409, 3.05949893, 4.030605086, 5.00011959, 5.97591094, 6.962425594, 7.979863591, 8.993523472, 9.986985069, 10.967611495, 11.937549037, 12.921786183, 13.919465291, 14.943216303, 16], False, 3, [1, 1, 1, 1, 1, 1, 1, 1, 1, 1, 1, 1, 1, 1, 1, 1, 1, 1, 1], False), False)  # 41
sketch2.addGeometry(Part.BSplineCurve([V(4.730769, 2.729367, 0), V(4.72909, 2.774807, 0), V(4.72575, 2.865184, 0), V(4.700739, 2.998785, 0), V(4.65785, 3.127995, 0), V(4.600211, 3.251932, 0), V(4.528421, 3.367277, 0), V(4.444373, 3.470449, 0), V(4.347299, 3.558722, 0), V(4.239374, 3.632215, 0), V(4.12181, 3.690498, 0), V(3.99677, 3.733114, 0), V(3.864002, 3.758031, 0), V(3.773142, 3.761202, 0), V(3.726763, 3.762821, 0)], [4, 1, 1, 1, 1, 1, 1, 1, 1, 1, 1, 1, 4], [0, 1.01787422, 2.024450869, 3.03297362, 4.061474925, 5.080076323, 6.069755756, 7.033548292, 8.009625779, 8.9862229, 9.964937832, 10.961217871, 12], False, 3, [1, 1, 1, 1, 1, 1, 1, 1, 1, 1, 1, 1, 1, 1, 1], False), False)  # 42
sketch2.addGeometry(Part.BSplineCurve([V(3.717648, 1.698718, 0), V(3.761236, 1.70059, 0), V(3.848239, 1.704328, 0), V(3.977045, 1.730921, 0), V(4.102344, 1.77612, 0), V(4.223482, 1.837121, 0), V(4.336051, 1.914105, 0), V(4.438459, 2.002498, 0), V(4.525928, 2.104737, 0), V(4.599202, 2.217622, 0), V(4.658355, 2.338241, 0), V(4.699523, 2.465072, 0), V(4.726101, 2.595749, 0), V(4.729205, 2.684601, 0), V(4.730769, 2.729367, 0)], [4, 1, 1, 1, 1, 1, 1, 1, 1, 1, 1, 1, 4], [0, 0.979154007, 1.954470061, 2.941101473, 3.965068436, 4.993389179, 5.998216918, 6.996159742, 8.005560442, 9.015493761, 10.005250788, 10.994993882, 12], False, 3, [1, 1, 1, 1, 1, 1, 1, 1, 1, 1, 1, 1, 1, 1, 1], False), False)  # 43
sketch2.addGeometry(Part.BSplineCurve([V(2.711538, 2.732171, 0), V(2.713173, 2.686258, 0), V(2.716401, 2.595632, 0), V(2.741554, 2.462574, 0), V(2.783515, 2.335314, 0), V(2.840565, 2.214051, 0), V(2.913663, 2.102166, 0), V(2.999785, 2.000416, 0), V(3.100387, 1.91194, 0), V(3.211866, 1.835851, 0), V(3.332039, 1.774768, 0), V(3.457619, 1.731544, 0), V(3.586436, 1.703089, 0), V(3.673797, 1.700179, 0), V(3.717648, 1.698718, 0)], [4, 1, 1, 1, 1, 1, 1, 1, 1, 1, 1, 1, 4], [0, 1.031130969, 2.035288524, 3.029955243, 4.035265425, 5.037320146, 6.024362013, 7.021230137, 8.037832003, 9.049975902, 10.039737725, 11.016035826, 12], False, 3, [1, 1, 1, 1, 1, 1, 1, 1, 1, 1, 1, 1, 1, 1, 1], False), False)  # 44
add_polygon(sketch2, [(1.410256, 5.064103), (1.410256, 4.75), (5, 4.75), (5, 5.064103)])  # lines 45-48
sketch2.addConstraint(Sketcher.Constraint("Block", 1))
sketch2.addConstraint(Sketcher.Constraint("Block", 2))
sketch2.addConstraint(Sketcher.Constraint("Block", 3))
sketch2.addConstraint(Sketcher.Constraint("Block", 4))
sketch2.addConstraint(Sketcher.Constraint("Block", 5))
sketch2.addConstraint(Sketcher.Constraint("Block", 7))
sketch2.addConstraint(Sketcher.Constraint("Block", 8))
sketch2.addConstraint(Sketcher.Constraint("Block", 9))
sketch2.addConstraint(Sketcher.Constraint("Block", 10))
sketch2.addConstraint(Sketcher.Constraint("Block", 11))
sketch2.addConstraint(Sketcher.Constraint("Block", 12))
sketch2.addConstraint(Sketcher.Constraint("Block", 13))
sketch2.addConstraint(Sketcher.Constraint("Block", 14))
sketch2.addConstraint(Sketcher.Constraint("Block", 15))
sketch2.addConstraint(Sketcher.Constraint("Block", 16))
sketch2.addConstraint(Sketcher.Constraint("Block", 17))
sketch2.addConstraint(Sketcher.Constraint("Block", 18))
sketch2.addConstraint(Sketcher.Constraint("Block", 19))
sketch2.addConstraint(Sketcher.Constraint("Block", 20))
sketch2.addConstraint(Sketcher.Constraint("Block", 25))
sketch2.addConstraint(Sketcher.Constraint("Block", 26))
sketch2.addConstraint(Sketcher.Constraint("Block", 27))
sketch2.addConstraint(Sketcher.Constraint("Block", 29))
sketch2.addConstraint(Sketcher.Constraint("Block", 30))
sketch2.addConstraint(Sketcher.Constraint("Block", 35))
sketch2.addConstraint(Sketcher.Constraint("Block", 36))
sketch2.addConstraint(Sketcher.Constraint("Block", 37))
sketch2.addConstraint(Sketcher.Constraint("Block", 38))
sketch2.addConstraint(Sketcher.Constraint("Block", 41))
sketch2.addConstraint(Sketcher.Constraint("Block", 42))
sketch2.addConstraint(Sketcher.Constraint("Block", 43))
sketch2.addConstraint(Sketcher.Constraint("Block", 44))
sketch2.addConstraint(Sketcher.Constraint("Coincident", 0, 2, 1, 2))
sketch2.addConstraint(Sketcher.Constraint("Coincident", 5, 1, 6, 1))
sketch2.addConstraint(Sketcher.Constraint("Coincident", 6, 2, 7, 2))
sketch2.addConstraint(Sketcher.Constraint("Coincident", 10, 1, 0, 1))
sketch2.addConstraint(Sketcher.Constraint("Coincident", 21, 2, 22, 1))
sketch2.addConstraint(Sketcher.Constraint("Coincident", 22, 2, 23, 1))
sketch2.addConstraint(Sketcher.Constraint("Coincident", 23, 2, 24, 1))
sketch2.addConstraint(Sketcher.Constraint("Coincident", 24, 2, 25, 2))
sketch2.addConstraint(Sketcher.Constraint("Coincident", 27, 1, 28, 1))
sketch2.addConstraint(Sketcher.Constraint("Coincident", 28, 2, 29, 2))
sketch2.addConstraint(Sketcher.Constraint("Coincident", 30, 1, 31, 1))
sketch2.addConstraint(Sketcher.Constraint("Coincident", 31, 2, 21, 1))
sketch2.addConstraint(Sketcher.Constraint("Coincident", 32, 2, 33, 1))
sketch2.addConstraint(Sketcher.Constraint("Coincident", 33, 2, 34, 1))
sketch2.addConstraint(Sketcher.Constraint("Coincident", 34, 2, 35, 2))
sketch2.addConstraint(Sketcher.Constraint("Coincident", 38, 1, 39, 1))
sketch2.addConstraint(Sketcher.Constraint("Coincident", 39, 2, 40, 1))
sketch2.addConstraint(Sketcher.Constraint("Coincident", 40, 2, 32, 1))
sketch2.addConstraint(Sketcher.Constraint("Vertical", 21))
sketch2.addConstraint(Sketcher.Constraint("Horizontal", 22))
sketch2.addConstraint(Sketcher.Constraint("Vertical", 23))
sketch2.addConstraint(Sketcher.Constraint("Horizontal", 24))
sketch2.addConstraint(Sketcher.Constraint("Horizontal", 31))
sketch2.addConstraint(Sketcher.Constraint("Horizontal", 32))
sketch2.addConstraint(Sketcher.Constraint("Vertical", 33))
sketch2.addConstraint(Sketcher.Constraint("Horizontal", 34))
sketch2.addConstraint(Sketcher.Constraint("Horizontal", 39))
sketch2.addConstraint(Sketcher.Constraint("Vertical", 40))
sketch2.addConstraint(Sketcher.Constraint("Vertical", 45))
sketch2.addConstraint(Sketcher.Constraint("Horizontal", 46))
sketch2.addConstraint(Sketcher.Constraint("Vertical", 47))
sketch2.addConstraint(Sketcher.Constraint("Horizontal", 48))
sketch2.addConstraint(Sketcher.Constraint("Vertical", 31, 2, 32, 2))
sketch2.addConstraint(Sketcher.Constraint("Vertical", 23, 2, 39, 2))
sketch2.addConstraint(Sketcher.Constraint("Vertical", 40, 2, 46, 2))
sketch2.addConstraint(Sketcher.Constraint("Equal", 23, 33))
sketch2.addConstraint(Sketcher.Constraint("Equal", 40, 45))
sketch2.addConstraint(Sketcher.Constraint("DistanceX", -1, 1, 22, 2, 5.0))
sketch2.addConstraint(Sketcher.Constraint("DistanceY", -1, 1, 45, 2, 4.75))
sketch2.addConstraint(Sketcher.Constraint("DistanceY", 6, 2, 21, 2, 3.999199))
sketch2.addConstraint(Sketcher.Constraint("DistanceX", 22, 1, 22, 2, 2.557692))
sketch2.addConstraint(Sketcher.Constraint("DistanceX", 46, 1, 46, 2, 3.589744))
pocket1 = body.newObject("PartDesign::Pocket", "Pocket")
pocket1.Profile = sketch2
pocket1.setExpression("Length", "Params.pocket1_length")

doc.recompute()
